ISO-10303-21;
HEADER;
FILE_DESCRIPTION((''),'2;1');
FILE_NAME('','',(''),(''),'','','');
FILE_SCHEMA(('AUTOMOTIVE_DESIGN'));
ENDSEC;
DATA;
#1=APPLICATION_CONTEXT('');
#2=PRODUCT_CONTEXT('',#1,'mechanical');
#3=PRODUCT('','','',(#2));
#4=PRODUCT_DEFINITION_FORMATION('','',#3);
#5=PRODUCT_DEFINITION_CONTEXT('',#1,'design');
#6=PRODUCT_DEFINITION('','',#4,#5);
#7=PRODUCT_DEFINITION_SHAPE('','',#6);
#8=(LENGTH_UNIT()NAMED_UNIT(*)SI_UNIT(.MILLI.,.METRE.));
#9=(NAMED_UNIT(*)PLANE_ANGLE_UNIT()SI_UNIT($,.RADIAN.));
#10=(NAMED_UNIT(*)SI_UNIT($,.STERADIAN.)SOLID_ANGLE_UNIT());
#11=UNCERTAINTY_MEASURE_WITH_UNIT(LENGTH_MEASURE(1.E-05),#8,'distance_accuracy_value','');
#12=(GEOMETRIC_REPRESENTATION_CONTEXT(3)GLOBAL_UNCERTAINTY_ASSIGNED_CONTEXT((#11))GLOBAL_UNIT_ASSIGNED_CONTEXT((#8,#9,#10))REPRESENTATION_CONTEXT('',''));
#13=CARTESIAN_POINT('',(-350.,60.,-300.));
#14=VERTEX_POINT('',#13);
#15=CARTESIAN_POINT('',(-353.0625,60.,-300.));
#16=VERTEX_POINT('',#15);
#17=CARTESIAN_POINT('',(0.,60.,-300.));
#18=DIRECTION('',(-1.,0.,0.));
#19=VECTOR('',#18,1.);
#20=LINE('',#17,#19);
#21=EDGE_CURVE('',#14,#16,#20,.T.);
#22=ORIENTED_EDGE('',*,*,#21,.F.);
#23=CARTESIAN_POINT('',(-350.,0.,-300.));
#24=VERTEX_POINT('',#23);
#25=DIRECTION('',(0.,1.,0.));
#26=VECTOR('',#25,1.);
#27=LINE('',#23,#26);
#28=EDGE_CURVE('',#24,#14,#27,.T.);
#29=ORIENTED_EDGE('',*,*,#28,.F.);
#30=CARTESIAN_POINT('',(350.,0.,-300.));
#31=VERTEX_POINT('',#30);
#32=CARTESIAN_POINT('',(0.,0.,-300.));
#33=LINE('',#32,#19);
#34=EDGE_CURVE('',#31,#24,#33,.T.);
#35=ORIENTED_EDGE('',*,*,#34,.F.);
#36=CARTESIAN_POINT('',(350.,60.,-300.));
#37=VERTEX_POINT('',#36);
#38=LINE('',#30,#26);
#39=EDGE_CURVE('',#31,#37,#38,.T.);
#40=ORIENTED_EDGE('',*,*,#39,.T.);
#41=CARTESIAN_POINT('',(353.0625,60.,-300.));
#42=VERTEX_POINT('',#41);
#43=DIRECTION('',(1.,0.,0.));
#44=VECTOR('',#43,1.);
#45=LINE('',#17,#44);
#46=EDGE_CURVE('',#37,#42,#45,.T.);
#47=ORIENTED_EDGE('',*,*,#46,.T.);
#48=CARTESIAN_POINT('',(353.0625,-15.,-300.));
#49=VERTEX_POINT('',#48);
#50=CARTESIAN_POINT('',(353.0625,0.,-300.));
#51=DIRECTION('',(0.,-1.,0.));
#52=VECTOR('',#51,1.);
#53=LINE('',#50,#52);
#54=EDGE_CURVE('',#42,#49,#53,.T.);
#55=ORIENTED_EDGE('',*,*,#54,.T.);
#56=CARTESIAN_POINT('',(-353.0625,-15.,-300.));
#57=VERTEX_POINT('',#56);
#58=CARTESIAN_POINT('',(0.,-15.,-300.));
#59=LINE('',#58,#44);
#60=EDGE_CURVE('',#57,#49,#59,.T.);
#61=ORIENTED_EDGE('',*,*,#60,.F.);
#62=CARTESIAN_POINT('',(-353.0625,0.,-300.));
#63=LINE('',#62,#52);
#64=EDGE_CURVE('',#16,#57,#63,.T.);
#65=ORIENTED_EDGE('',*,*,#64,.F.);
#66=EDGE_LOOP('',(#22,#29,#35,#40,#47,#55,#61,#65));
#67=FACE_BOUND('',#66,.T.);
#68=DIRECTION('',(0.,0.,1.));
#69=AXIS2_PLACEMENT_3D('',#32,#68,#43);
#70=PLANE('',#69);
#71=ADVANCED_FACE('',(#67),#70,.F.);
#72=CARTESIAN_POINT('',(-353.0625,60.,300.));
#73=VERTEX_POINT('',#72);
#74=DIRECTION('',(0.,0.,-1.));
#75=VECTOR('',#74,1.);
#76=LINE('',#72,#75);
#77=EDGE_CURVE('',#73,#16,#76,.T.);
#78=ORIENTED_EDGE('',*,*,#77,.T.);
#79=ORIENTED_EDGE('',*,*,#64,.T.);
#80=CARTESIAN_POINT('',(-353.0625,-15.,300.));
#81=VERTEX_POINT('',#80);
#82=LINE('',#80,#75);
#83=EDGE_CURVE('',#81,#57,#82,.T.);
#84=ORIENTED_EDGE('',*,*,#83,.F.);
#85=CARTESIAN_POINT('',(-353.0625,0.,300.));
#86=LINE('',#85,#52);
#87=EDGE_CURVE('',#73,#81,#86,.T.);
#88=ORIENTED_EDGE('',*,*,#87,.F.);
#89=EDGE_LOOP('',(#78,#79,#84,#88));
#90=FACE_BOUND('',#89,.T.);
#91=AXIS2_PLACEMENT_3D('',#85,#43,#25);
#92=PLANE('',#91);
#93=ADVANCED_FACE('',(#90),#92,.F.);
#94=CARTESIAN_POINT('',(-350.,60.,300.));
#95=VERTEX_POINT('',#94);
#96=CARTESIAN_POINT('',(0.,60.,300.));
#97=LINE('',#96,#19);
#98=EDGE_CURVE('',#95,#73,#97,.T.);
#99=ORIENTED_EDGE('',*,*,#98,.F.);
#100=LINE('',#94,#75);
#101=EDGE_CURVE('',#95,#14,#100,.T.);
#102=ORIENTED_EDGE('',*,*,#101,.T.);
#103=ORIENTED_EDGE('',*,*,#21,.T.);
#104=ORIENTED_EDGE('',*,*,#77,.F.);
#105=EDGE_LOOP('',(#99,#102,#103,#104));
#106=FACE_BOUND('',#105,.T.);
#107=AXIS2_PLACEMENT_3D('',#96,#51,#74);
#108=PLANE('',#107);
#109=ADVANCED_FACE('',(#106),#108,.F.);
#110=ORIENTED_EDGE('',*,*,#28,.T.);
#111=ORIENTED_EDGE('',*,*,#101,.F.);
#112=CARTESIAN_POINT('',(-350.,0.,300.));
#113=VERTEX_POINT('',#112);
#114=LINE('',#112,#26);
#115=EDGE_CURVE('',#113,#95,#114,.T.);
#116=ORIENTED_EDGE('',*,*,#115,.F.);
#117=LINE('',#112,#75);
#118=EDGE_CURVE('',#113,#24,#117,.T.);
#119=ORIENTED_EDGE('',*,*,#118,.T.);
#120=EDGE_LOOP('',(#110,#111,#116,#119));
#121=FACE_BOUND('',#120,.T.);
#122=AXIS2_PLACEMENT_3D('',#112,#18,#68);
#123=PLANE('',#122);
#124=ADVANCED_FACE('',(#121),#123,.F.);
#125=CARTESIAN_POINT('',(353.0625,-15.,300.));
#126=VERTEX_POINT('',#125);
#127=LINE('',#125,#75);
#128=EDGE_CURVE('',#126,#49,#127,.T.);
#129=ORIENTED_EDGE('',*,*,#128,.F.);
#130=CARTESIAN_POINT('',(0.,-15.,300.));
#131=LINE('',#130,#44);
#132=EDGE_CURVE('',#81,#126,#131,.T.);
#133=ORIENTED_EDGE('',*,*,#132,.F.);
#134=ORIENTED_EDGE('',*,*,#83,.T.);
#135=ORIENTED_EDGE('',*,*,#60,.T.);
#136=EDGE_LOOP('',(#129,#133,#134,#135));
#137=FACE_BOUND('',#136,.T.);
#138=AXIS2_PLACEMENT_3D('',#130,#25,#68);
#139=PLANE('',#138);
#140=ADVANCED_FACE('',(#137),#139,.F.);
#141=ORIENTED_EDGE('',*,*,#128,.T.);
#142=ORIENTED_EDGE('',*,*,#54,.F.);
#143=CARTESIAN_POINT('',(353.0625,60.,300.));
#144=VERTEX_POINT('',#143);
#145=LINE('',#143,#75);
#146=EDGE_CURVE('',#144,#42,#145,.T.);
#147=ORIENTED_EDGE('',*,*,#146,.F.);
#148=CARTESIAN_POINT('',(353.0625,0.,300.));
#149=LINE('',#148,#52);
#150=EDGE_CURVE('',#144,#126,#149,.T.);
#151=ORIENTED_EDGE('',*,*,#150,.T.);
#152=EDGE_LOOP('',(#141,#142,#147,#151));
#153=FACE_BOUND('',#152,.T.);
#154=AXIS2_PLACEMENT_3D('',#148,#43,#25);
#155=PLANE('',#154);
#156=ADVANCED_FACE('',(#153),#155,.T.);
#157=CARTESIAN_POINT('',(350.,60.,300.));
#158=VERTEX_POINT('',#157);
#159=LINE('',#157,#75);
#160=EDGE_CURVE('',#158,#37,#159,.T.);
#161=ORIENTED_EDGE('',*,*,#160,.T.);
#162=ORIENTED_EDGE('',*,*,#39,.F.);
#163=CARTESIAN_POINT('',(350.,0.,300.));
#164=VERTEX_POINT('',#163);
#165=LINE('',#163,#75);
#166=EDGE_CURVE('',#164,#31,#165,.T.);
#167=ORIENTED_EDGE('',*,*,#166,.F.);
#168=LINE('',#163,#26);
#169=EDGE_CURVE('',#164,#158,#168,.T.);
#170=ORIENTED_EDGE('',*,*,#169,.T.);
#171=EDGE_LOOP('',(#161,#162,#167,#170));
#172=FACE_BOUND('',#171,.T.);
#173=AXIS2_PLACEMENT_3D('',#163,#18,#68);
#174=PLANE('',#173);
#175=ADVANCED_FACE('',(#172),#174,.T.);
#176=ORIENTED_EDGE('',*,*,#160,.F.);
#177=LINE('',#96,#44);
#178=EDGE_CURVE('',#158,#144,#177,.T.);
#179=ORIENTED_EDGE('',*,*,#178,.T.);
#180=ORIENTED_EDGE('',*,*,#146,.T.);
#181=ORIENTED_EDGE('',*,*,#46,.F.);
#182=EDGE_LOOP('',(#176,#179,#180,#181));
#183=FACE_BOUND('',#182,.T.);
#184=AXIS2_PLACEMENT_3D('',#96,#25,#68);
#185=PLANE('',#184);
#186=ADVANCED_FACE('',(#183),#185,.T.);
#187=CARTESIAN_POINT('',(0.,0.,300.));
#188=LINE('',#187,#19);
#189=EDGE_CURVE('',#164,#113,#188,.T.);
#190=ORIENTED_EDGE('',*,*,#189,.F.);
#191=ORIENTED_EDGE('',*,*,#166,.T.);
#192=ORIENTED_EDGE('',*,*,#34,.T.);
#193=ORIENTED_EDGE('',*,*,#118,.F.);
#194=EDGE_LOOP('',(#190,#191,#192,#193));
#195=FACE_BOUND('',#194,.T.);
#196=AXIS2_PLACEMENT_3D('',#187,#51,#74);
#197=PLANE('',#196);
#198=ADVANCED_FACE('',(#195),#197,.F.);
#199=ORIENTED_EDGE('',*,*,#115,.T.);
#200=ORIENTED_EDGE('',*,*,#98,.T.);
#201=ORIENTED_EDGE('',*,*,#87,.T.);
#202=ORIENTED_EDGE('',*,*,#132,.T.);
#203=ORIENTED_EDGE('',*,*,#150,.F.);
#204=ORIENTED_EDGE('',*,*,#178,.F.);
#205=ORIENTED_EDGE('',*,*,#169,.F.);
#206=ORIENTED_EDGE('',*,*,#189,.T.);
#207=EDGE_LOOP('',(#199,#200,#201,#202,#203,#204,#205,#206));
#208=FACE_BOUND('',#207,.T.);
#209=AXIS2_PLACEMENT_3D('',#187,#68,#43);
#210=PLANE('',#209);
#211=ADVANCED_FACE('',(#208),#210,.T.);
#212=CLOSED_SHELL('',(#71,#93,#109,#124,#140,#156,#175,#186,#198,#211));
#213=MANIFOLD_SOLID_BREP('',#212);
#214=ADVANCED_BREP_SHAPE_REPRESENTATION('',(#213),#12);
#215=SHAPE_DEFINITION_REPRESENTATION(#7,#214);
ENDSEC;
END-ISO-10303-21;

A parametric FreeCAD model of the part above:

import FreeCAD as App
import Part
import Sketcher

V = App.Vector
Q = App.Units.Quantity


def add_polygon(sketch, points):
    """Adds a closed chain of lines whose ends are joined by coincident constraints."""
    first, n = sketch.GeometryCount, len(points)
    for a, b in zip(points, points[1:] + points[:1]):
        sketch.addGeometry(Part.LineSegment(App.Vector(*a, 0), App.Vector(*b, 0)), False)
    for i in range(n):
        sketch.addConstraint(Sketcher.Constraint("Coincident", first + i, 2, first + (i + 1) % n, 1))

doc = App.newDocument("Part")
body = doc.addObject("PartDesign::Body", "Body")

# Sketch on XY plane
sketch1 = body.newObject("Sketcher::SketchObject", "Sketch")
sketch1.AttachmentSupport = (doc.getObject("XY_Plane"), [""])
sketch1.MapMode = "FlatFace"
add_polygon(sketch1, [(-350, 0), (-350, 60), (-353.0625, 60), (-353.0625, -15), (353.0625, -15), (353.0625, 60), (350, 60), (350, 0)])  # lines 0-7
sketch1.addConstraint([
    Sketcher.Constraint("Vertical", 0),
    Sketcher.Constraint("Horizontal", 1),
    Sketcher.Constraint("Vertical", 2),
    Sketcher.Constraint("Horizontal", 3),
    Sketcher.Constraint("Vertical", 4),
    Sketcher.Constraint("Horizontal", 5),
    Sketcher.Constraint("Vertical", 6),
    Sketcher.Constraint("Horizontal", 7),
    Sketcher.Constraint("Symmetric", 6, 2, 7, 2, -1, 1),
    Sketcher.Constraint("Symmetric", 1, 2, 4, 2, -2),
    Sketcher.Constraint("DistanceX", 7, 2, 7, 1, Q("700 mm")),
    Sketcher.Constraint("DistanceY", 0, 1, 0, 2, Q("60 mm")),
    Sketcher.Constraint("DistanceY", 2, 2, 2, 1, Q("75 mm")),
    Sketcher.Constraint("DistanceX", 3, 1, 3, 2, Q("706.125 mm")),
])
pad1 = body.newObject("PartDesign::Pad", "Pad")
pad1.Profile = sketch1
pad1.Length = 600
pad1.Midplane = True

doc.recompute()
